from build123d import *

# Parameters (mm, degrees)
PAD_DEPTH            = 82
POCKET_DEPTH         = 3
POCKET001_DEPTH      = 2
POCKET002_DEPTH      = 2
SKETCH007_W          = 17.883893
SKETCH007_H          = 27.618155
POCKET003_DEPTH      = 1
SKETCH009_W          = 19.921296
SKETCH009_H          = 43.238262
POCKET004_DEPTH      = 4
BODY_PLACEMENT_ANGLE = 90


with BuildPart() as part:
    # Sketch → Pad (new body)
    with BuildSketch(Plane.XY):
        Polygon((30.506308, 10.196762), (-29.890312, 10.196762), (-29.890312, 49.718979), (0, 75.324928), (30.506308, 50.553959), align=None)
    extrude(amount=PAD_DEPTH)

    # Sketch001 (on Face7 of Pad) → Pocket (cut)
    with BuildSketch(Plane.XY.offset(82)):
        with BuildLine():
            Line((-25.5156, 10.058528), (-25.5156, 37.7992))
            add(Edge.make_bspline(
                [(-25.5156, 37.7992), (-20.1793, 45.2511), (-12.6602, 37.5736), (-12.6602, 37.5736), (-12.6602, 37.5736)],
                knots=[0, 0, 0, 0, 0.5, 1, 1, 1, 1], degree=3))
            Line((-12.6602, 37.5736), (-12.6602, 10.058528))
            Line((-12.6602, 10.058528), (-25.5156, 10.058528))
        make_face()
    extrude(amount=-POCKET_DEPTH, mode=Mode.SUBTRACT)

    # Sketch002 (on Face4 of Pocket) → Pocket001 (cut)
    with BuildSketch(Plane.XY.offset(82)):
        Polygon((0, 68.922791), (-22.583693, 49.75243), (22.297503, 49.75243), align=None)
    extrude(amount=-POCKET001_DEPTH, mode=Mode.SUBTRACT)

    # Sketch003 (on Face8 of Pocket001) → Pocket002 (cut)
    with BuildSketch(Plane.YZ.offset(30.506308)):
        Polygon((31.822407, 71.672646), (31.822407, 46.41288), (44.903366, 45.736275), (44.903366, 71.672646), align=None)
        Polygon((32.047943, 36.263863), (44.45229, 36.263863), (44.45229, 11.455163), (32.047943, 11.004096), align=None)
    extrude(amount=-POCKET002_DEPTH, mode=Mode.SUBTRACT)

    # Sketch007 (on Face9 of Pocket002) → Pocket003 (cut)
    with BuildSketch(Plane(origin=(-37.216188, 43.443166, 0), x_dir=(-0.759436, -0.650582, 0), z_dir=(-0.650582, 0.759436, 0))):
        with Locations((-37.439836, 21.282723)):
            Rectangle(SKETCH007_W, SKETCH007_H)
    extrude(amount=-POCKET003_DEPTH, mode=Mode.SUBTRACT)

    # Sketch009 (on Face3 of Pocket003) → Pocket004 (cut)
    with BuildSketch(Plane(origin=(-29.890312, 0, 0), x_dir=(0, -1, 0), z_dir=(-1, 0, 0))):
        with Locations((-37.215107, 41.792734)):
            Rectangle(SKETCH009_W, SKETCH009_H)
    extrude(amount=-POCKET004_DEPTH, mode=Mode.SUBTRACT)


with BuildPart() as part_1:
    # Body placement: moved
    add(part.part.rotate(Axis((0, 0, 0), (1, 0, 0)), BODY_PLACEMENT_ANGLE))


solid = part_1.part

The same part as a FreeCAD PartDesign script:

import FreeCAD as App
import Part
import Sketcher

V = App.Vector


def add_polygon(sketch, points):
    """Adds a closed chain of lines whose ends are joined by coincident constraints."""
    first, n = sketch.GeometryCount, len(points)
    for a, b in zip(points, points[1:] + points[:1]):
        sketch.addGeometry(Part.LineSegment(App.Vector(*a, 0), App.Vector(*b, 0)), False)
    for i in range(n):
        sketch.addConstraint(Sketcher.Constraint("Coincident", first + i, 2, first + (i + 1) % n, 1))

doc = App.newDocument("Part")
params = doc.addObject("Spreadsheet::Sheet", "Params")
for row, (alias, value) in enumerate([
    ("pad1_length", "82 mm"),
    ("pocket1_length", "3 mm"),
    ("pocket2_length", "2 mm"),
    ("pocket3_length", "2 mm"),
    ("pocket4_length", "1 mm"),
    ("pocket5_length", "4 mm"),
], start=1):
    params.set(f"A{row}", alias)
    params.set(f"B{row}", "=" + value)
    params.setAlias(f"B{row}", alias)

body = doc.addObject("PartDesign::Body", "Body")

sketch1 = doc.addObject("Sketcher::SketchObject", "Sketch")
body.addObject(sketch1)
sketch1.AttachmentSupport = (doc.XY_Plane, [""])
sketch1.MapMode = "FlatFace"
add_polygon(sketch1, [(-29.890312, 10.196762), (30.506308, 10.196762), (30.506308, 50.553959), (0, 75.324928), (-29.890312, 49.718979)])
sketch1.addConstraint([
    Sketcher.Constraint("Horizontal", 0),
    Sketcher.Constraint("Vertical", 1),
    Sketcher.Constraint("Vertical", 4),
    Sketcher.Constraint("PointOnObject", 2, 2, -2),
    Sketcher.Constraint("DistanceX", 0, 1, 0, 2, 60.39662),
    Sketcher.Constraint("Distance", 3, 39.358549),
    Sketcher.Constraint("DistanceY", 1, 1, 1, 2, 40.357197),
    Sketcher.Constraint("DistanceY", 4, 2, 4, 1, 39.522217),
    Sketcher.Constraint("DistanceX", -1, 1, 0, 2, 30.506308),
    Sketcher.Constraint("DistanceY", -1, 1, 1, 2, 50.553959),
])
pad1 = doc.addObject("PartDesign::Pad", "Pad")
body.addObject(pad1)
pad1.Profile = sketch1
pad1.setExpression("Length", "Params.pad1_length")

sketch2 = doc.addObject("Sketcher::SketchObject", "Sketch001")
body.addObject(sketch2)
sketch2.AttachmentSupport = (doc.XY_Plane, [""])
sketch2.MapMode = "FlatFace"
sketch2.AttachmentOffset = App.Placement(V(0, 0, 82), App.Rotation())
sketch2.addGeometry([
    Part.LineSegment(V(-25.5156, 37.7992, 0), V(-25.5156, 10.058528, 0)),
    Part.LineSegment(V(-25.5156, 10.058528, 0), V(-12.6602, 10.058528, 0)),
    Part.LineSegment(V(-12.6602, 10.058528, 0), V(-12.6602, 37.5736, 0)),
    Part.BSplineCurve([V(-25.5156, 37.7992, 0), V(-20.1793, 45.2511, 0), V(-12.6602, 37.5736, 0), V(-12.6602, 37.5736, 0), V(-12.6602, 37.5736, 0)], [4, 1, 4], [0, 0.5, 1], False, 3, [1, 1, 1, 1, 1], False),
], False)
sketch2.addConstraint([
    Sketcher.Constraint("Block", 3),
    Sketcher.Constraint("Coincident", 0, 2, 1, 1),
    Sketcher.Constraint("Coincident", 1, 2, 2, 1),
    Sketcher.Constraint("Coincident", 2, 2, 3, 2),
    Sketcher.Constraint("Coincident", 3, 1, 0, 1),
    Sketcher.Constraint("Vertical", 0),
    Sketcher.Constraint("Horizontal", 1),
    Sketcher.Constraint("Vertical", 2),
    Sketcher.Constraint("DistanceY", 0, 2, 0, 1, 27.740672),
])
pocket1 = doc.addObject("PartDesign::Pocket", "Pocket")
body.addObject(pocket1)
pocket1.Profile = sketch2
pocket1.setExpression("Length", "Params.pocket1_length")

sketch3 = doc.addObject("Sketcher::SketchObject", "Sketch002")
body.addObject(sketch3)
sketch3.AttachmentSupport = (doc.XY_Plane, [""])
sketch3.MapMode = "FlatFace"
sketch3.AttachmentOffset = App.Placement(V(0, 0, 82), App.Rotation())
add_polygon(sketch3, [(0, 68.922791), (-22.583693, 49.75243), (22.297503, 49.75243)])
sketch3.addConstraint([
    Sketcher.Constraint("Horizontal", 1),
    Sketcher.Constraint("PointOnObject", 2, 2, -2),
    Sketcher.Constraint("DistanceX", 1, 1, 1, 2, 44.881196),
    Sketcher.Constraint("DistanceY", -1, 1, 0, 2, 49.75243),
    Sketcher.Constraint("DistanceY", -1, 1, 2, 2, 68.922791),
    Sketcher.Constraint("Distance", 0, 29.623064),
])
pocket2 = doc.addObject("PartDesign::Pocket", "Pocket001")
body.addObject(pocket2)
pocket2.Profile = sketch3
pocket2.setExpression("Length", "Params.pocket2_length")

sketch4 = doc.addObject("Sketcher::SketchObject", "Sketch003")
body.addObject(sketch4)
sketch4.AttachmentSupport = (doc.YZ_Plane, [""])
sketch4.MapMode = "FlatFace"
sketch4.AttachmentOffset = App.Placement(V(0, 0, 30.506308), App.Rotation())
add_polygon(sketch4, [(31.822407, 71.672646), (31.822407, 46.41288), (44.903366, 45.736275), (44.903366, 71.672646)])
add_polygon(sketch4, [(44.45229, 36.263863), (32.047943, 36.263863), (32.047943, 11.004096), (44.45229, 11.455163)])
sketch4.addConstraint([
    Sketcher.Constraint("Vertical", 0),
    Sketcher.Constraint("Vertical", 2),
    Sketcher.Constraint("Horizontal", 3),
    Sketcher.Constraint("Horizontal", 4),
    Sketcher.Constraint("Vertical", 5),
    Sketcher.Constraint("Vertical", 7),
    Sketcher.Constraint("Equal", 0, 5),
    Sketcher.Constraint("DistanceY", 7, 1, 7, 2, 24.8087),
    Sketcher.Constraint("DistanceX", 3, 2, 3, 1, 13.080959),
    Sketcher.Constraint("DistanceY", 2, 1, 2, 2, 25.936371),
    Sketcher.Constraint("DistanceX", 4, 2, 4, 1, 12.404347),
    Sketcher.Constraint("DistanceY", 0, 2, 0, 1, 25.259766),
    Sketcher.Constraint("DistanceY", -1, 1, 0, 2, 46.41288),
    Sketcher.Constraint("DistanceX", -1, 1, 6, 2, 44.45229),
    Sketcher.Constraint("DistanceY", 4, 2, 1, 2, 9.472412),
    Sketcher.Constraint("DistanceX", -1, 1, 0, 2, 31.822407),
])
pocket3 = doc.addObject("PartDesign::Pocket", "Pocket002")
body.addObject(pocket3)
pocket3.Profile = sketch4
pocket3.setExpression("Length", "Params.pocket3_length")

sketch5 = doc.addObject("Sketcher::SketchObject", "Sketch004")
body.addObject(sketch5)
sketch5.Placement = App.Placement(V(-37.216188, 43.443166, 0), App.Rotation(V(-0.759436009, -0.650582008, 0), V(0, 0, 1.000000001), V(-0.650582008, 0.759436009, 0), "ZXY"))
add_polygon(sketch5, [(-46.381783, 35.091801), (-46.381783, 7.473646), (-28.49789, 7.473646), (-28.49789, 35.091801)])
sketch5.addConstraint([
    Sketcher.Constraint("Vertical", 0),
    Sketcher.Constraint("Horizontal", 1),
    Sketcher.Constraint("Vertical", 2),
    Sketcher.Constraint("Horizontal", 3),
    Sketcher.Constraint("DistanceY", -1, 1, 2, 2, 35.091801),
    Sketcher.Constraint("DistanceX", 1, 1, 1, 2, 17.883893),
    Sketcher.Constraint("DistanceY", 0, 2, 0, 1, 27.618155),
    Sketcher.Constraint("DistanceX", 1, 2, -1, 1, 28.49789),
])
pocket4 = doc.addObject("PartDesign::Pocket", "Pocket003")
body.addObject(pocket4)
pocket4.Profile = sketch5
pocket4.setExpression("Length", "Params.pocket4_length")

sketch6 = doc.addObject("Sketcher::SketchObject", "Sketch005")
body.addObject(sketch6)
sketch6.AttachmentSupport = (doc.YZ_Plane, [""])
sketch6.MapMode = "FlatFace"
sketch6.AttachmentOffset = App.Placement(V(0, 0, -29.890312), App.Rotation())
add_polygon(sketch6, [(47.175755, 63.411865), (47.175755, 20.173603), (27.254459, 20.173603), (27.254459, 63.411865)])
sketch6.addConstraint([
    Sketcher.Constraint("Vertical", 0),
    Sketcher.Constraint("Horizontal", 1),
    Sketcher.Constraint("Vertical", 2),
    Sketcher.Constraint("Horizontal", 3),
    Sketcher.Constraint("DistanceX", 1, 2, 1, 1, 19.921296),
    Sketcher.Constraint("DistanceY", 0, 2, 0, 1, 43.238262),
    Sketcher.Constraint("DistanceX", -1, 1, 1, 2, 27.254459),
    Sketcher.Constraint("DistanceY", -1, 1, 0, 2, 20.173603),
])
pocket5 = doc.addObject("PartDesign::Pocket", "Pocket004")
body.addObject(pocket5)
pocket5.Profile = sketch6
pocket5.setExpression("Length", "Params.pocket5_length")
pocket5.Reversed = True
body2 = doc.addObject("PartDesign::Body", "Body001")
doc.recompute()

body.Placement = App.Placement(V(0, 0, 0), App.Rotation(V(1, 0, 0), 90))
boolean = doc.addObject("PartDesign::Boolean", "Boolean")
body2.addObject(boolean)
boolean.Type = "Fuse"
boolean.addObjects([body])

doc.recompute()
